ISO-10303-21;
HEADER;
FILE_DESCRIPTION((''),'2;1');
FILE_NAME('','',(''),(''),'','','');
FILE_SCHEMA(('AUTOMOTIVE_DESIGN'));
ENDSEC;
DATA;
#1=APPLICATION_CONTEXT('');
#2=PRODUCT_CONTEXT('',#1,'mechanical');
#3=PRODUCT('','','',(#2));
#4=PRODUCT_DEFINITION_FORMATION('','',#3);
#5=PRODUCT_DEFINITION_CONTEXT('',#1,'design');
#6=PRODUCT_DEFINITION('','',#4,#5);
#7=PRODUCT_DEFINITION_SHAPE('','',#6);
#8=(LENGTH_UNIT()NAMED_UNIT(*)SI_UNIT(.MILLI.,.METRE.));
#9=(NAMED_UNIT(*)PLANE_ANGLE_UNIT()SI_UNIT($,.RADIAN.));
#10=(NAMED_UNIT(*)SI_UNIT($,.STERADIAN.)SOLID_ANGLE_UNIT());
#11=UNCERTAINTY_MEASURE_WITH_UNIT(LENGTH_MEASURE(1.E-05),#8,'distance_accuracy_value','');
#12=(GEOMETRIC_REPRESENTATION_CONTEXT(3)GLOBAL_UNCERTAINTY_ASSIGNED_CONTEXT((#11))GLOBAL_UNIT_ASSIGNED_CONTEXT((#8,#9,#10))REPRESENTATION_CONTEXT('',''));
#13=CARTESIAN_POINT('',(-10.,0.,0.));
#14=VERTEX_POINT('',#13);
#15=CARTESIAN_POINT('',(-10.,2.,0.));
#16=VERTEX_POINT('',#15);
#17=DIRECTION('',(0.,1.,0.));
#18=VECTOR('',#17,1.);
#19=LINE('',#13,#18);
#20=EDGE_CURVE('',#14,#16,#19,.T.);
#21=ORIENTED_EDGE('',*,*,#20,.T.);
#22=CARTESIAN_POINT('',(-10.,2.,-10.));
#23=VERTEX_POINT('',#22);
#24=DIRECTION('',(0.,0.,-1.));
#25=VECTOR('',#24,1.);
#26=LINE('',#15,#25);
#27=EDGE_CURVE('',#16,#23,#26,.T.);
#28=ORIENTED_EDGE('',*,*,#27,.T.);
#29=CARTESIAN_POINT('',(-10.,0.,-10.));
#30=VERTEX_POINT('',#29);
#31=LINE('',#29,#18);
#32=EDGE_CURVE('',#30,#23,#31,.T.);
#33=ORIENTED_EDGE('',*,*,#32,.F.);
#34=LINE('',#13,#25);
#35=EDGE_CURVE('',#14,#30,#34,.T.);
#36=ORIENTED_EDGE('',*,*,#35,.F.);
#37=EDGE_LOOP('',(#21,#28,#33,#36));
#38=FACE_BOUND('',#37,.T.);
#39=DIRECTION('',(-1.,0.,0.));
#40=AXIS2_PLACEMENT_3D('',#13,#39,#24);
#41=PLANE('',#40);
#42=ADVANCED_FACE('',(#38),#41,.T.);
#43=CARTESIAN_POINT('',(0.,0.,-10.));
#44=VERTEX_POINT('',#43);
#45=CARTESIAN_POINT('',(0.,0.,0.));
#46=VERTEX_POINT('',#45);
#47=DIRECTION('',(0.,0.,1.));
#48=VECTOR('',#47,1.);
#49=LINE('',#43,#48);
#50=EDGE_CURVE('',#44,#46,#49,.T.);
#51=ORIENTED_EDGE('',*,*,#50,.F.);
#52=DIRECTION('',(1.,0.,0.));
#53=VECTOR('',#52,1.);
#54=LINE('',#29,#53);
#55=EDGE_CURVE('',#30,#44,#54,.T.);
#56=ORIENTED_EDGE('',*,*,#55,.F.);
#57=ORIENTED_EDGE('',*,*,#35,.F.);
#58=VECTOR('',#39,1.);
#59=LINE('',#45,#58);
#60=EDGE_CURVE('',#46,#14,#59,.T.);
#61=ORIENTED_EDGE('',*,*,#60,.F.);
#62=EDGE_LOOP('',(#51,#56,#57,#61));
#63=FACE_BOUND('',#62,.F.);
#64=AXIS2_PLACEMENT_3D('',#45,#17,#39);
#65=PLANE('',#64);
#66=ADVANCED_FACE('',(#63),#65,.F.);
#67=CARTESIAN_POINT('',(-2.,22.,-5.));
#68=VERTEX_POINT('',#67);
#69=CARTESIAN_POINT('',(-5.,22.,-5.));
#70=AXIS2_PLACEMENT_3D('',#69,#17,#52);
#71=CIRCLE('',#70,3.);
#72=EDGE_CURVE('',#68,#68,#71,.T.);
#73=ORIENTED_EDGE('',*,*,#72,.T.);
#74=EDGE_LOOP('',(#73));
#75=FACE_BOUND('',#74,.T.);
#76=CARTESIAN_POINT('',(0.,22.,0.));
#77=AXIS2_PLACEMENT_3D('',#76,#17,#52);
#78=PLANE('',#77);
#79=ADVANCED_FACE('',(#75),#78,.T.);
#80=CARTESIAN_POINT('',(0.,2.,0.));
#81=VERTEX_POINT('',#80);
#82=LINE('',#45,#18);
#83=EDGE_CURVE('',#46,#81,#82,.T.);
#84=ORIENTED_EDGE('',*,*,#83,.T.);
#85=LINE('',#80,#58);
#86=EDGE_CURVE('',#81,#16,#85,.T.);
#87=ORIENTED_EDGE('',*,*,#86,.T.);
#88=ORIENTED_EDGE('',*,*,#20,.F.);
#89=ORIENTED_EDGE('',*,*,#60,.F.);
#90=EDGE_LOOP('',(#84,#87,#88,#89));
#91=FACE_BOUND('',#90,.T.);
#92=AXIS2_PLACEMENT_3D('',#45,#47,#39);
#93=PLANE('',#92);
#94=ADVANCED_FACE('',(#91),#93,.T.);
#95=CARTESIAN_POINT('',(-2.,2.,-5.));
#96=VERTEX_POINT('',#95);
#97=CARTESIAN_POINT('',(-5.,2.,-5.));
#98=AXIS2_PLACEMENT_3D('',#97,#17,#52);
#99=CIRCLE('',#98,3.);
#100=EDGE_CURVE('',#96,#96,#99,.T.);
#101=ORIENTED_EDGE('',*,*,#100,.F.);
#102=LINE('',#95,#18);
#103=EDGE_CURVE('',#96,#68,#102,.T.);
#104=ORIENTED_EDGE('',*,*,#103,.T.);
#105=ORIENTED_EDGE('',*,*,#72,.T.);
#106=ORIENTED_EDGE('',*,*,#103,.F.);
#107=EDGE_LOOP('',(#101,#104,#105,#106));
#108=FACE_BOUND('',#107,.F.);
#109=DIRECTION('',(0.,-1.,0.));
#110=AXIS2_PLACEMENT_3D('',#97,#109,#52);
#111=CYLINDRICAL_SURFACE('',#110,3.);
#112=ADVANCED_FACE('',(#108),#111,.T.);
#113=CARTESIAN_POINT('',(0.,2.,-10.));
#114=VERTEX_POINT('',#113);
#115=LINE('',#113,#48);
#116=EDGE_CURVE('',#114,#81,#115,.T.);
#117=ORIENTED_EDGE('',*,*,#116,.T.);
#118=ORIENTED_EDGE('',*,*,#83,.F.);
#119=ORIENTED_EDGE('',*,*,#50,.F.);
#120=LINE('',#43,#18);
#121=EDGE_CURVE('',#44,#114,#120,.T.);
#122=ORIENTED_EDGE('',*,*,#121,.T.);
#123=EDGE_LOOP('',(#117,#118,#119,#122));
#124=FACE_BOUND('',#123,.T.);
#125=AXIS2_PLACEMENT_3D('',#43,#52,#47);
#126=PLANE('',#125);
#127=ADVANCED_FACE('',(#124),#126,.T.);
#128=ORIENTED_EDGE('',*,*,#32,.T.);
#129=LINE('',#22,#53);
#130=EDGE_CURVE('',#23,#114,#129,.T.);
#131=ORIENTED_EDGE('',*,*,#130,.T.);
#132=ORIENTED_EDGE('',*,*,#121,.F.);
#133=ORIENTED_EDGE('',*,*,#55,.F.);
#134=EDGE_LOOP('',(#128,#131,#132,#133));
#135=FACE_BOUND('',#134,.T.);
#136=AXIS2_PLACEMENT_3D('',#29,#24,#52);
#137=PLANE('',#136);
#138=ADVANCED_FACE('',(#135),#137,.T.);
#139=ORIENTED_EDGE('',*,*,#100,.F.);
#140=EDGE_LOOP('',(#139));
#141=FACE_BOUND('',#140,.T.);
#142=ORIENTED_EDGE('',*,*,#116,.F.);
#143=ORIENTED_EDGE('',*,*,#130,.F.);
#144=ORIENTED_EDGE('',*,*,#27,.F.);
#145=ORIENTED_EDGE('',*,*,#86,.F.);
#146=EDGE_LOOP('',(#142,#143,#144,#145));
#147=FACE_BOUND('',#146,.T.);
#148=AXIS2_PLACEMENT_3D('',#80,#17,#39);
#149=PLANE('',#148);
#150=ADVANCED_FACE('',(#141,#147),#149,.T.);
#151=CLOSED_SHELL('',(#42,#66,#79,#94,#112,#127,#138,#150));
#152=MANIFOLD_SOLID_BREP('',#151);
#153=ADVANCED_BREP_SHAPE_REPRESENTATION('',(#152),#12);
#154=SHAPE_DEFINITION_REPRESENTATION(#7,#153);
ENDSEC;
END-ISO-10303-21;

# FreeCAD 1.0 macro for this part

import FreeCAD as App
import Part
import Sketcher


def add_polygon(sketch, points):
    """Adds a closed chain of lines whose ends are joined by coincident constraints."""
    first, n = sketch.GeometryCount, len(points)
    for a, b in zip(points, points[1:] + points[:1]):
        sketch.addGeometry(Part.LineSegment(App.Vector(*a, 0), App.Vector(*b, 0)), False)
    for i in range(n):
        sketch.addConstraint(Sketcher.Constraint("Coincident", first + i, 2, first + (i + 1) % n, 1))

doc = App.newDocument("Part")
body = doc.addObject("PartDesign::Body", "Body")

sketch1 = body.newObject("Sketcher::SketchObject", "Sketch")
sketch1.AttachmentSupport = (doc.getObject("XZ_Plane"), [""])
sketch1.MapMode = "FlatFace"
add_polygon(sketch1, [(-10, 0), (0, 0), (0, -10), (-10, -10)])
sketch1.addConstraint([
    Sketcher.Constraint("Horizontal", 0),
    Sketcher.Constraint("Vertical", 1),
    Sketcher.Constraint("Horizontal", 2),
    Sketcher.Constraint("Vertical", 3),
    Sketcher.Constraint("Coincident", 0, 2, -1, 1),
    Sketcher.Constraint("Equal", 2, 1),
    Sketcher.Constraint("DistanceX", 0, 1, 0, 2, 10.0),
])
pad1 = body.newObject("PartDesign::Pad", "Pad")
pad1.Profile = sketch1
pad1.Length = 2
pad1.Reversed = True

sketch2 = body.newObject("Sketcher::SketchObject", "Sketch001")
sketch2.AttachmentSupport = (doc.getObject("XZ_Plane"), [""])
sketch2.MapMode = "FlatFace"
sketch2.AttachmentOffset = App.Placement(App.Vector(0, 0, -2), App.Rotation())
sketch2.addGeometry(Part.Circle(App.Vector(-5, -5, 0), App.Vector(0, 0, 1), 3), False)
sketch2.addConstraint([
    Sketcher.Constraint("Diameter", 0, 6.0),
    Sketcher.Constraint("DistanceX", 0, 3, -1, 1, 5.0),
    Sketcher.Constraint("DistanceY", 0, 3, -1, 1, 5.0),
])
pad2 = body.newObject("PartDesign::Pad", "Pad001")
pad2.Profile = sketch2
pad2.Length = 20
pad2.Reversed = True

doc.recompute()
